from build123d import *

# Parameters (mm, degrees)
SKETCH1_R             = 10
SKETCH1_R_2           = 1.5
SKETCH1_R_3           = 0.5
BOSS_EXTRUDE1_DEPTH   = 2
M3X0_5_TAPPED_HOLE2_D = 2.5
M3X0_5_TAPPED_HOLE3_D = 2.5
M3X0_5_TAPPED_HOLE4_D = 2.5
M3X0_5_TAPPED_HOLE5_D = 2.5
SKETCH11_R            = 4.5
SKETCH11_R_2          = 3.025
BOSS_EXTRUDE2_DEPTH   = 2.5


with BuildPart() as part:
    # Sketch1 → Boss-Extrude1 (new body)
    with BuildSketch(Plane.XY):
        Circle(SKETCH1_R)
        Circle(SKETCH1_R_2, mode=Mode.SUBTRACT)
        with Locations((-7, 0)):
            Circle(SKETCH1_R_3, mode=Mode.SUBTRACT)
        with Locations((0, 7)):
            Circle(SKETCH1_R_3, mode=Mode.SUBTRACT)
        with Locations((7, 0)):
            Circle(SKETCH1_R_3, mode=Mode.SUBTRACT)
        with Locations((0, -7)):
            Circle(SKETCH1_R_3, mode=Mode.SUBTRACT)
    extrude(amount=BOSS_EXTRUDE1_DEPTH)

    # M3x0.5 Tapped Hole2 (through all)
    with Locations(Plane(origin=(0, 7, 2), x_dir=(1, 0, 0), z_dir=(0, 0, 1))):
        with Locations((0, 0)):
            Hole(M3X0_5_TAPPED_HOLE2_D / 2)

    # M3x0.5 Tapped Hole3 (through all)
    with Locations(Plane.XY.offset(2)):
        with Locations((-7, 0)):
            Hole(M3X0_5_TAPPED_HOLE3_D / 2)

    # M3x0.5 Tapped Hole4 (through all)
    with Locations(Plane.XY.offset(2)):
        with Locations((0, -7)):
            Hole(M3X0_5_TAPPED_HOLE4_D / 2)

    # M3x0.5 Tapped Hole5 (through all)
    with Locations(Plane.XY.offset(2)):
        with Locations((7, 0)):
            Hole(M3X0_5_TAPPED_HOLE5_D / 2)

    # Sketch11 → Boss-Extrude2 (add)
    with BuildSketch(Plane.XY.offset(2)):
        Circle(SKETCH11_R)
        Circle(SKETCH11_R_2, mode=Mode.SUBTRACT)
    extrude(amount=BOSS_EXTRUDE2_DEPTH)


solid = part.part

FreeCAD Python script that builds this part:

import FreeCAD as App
import Part
import Sketcher
from FreeCAD import Vector
Q = App.Units.Quantity

doc = App.newDocument("Part")
body = doc.addObject("PartDesign::Body", "Body")

# Sketch on XY plane
sketch1 = body.newObject("Sketcher::SketchObject", "Sketch")
sketch1.AttachmentSupport = (doc.getObject("XY_Plane"), [""])
sketch1.MapMode = "FlatFace"
sketch1.addGeometry([
    Part.Circle(Vector(0, 0, 0), Vector(0, 0, 1), 10),  # 0
    Part.Circle(Vector(0, -7, 0), Vector(0, 0, 1), 0.5),  # 1
    Part.Circle(Vector(-7, 0, 0), Vector(0, 0, 1), 0.5),  # 2
    Part.Circle(Vector(0, 0, 0), Vector(0, 0, 1), 1.5),  # 3
    Part.Circle(Vector(7, 0, 0), Vector(0, 0, 1), 0.5),  # 4
    Part.Circle(Vector(0, 7, 0), Vector(0, 0, 1), 0.5),  # 5
], False)
sketch1.addConstraint([
    Sketcher.Constraint("Coincident", 0, 3, -1, 1),
    Sketcher.Constraint("Coincident", 3, 3, -1, 1),
    Sketcher.Constraint("Equal", 1, 2),
    Sketcher.Constraint("Equal", 2, 4),
    Sketcher.Constraint("Equal", 4, 5),
    Sketcher.Constraint("Symmetric", 2, 3, 4, 3, -1, 1),
    Sketcher.Constraint("Symmetric", 1, 3, 5, 3, -1, 1),
    Sketcher.Constraint("PointOnObject", 1, 3, -2),
    Sketcher.Constraint("PointOnObject", 2, 3, -1),
    Sketcher.Constraint("Diameter", 0, Q("20 mm")),
    Sketcher.Constraint("Diameter", 1, Q("1 mm")),
    Sketcher.Constraint("Diameter", 3, Q("3 mm")),
    Sketcher.Constraint("DistanceY", 1, 3, -1, 1, Q("7 mm")),
    Sketcher.Constraint("DistanceX", 2, 3, -1, 1, Q("7 mm")),
])
pad1 = body.newObject("PartDesign::Pad", "Pad")
pad1.Profile = sketch1
pad1.Length = 2

# Sketch on XY plane
sketch2 = body.newObject("Sketcher::SketchObject", "Sketch001")
sketch2.AttachmentSupport = (doc.getObject("XY_Plane"), [""])
sketch2.MapMode = "FlatFace"
sketch2.AttachmentOffset = App.Placement(Vector(0, 0, 2), App.Rotation())
sketch2.addGeometry(Part.Circle(Vector(0, 7, 0), Vector(0, 0, 1), 1.2), False)
sketch2.addConstraint([
    Sketcher.Constraint("PointOnObject", 0, 3, -2),
    Sketcher.Constraint("Diameter", 0, Q("2.5 mm")),
    Sketcher.Constraint("DistanceY", -1, 1, 0, 3, Q("7 mm")),
])
doc.recompute()
hole = body.newObject("PartDesign::Hole", "Hole")
hole.Profile = sketch2
hole.ThreadType = "None"
hole.Diameter = 2.5
hole.DepthType = "ThroughAll"

# Sketch on XY plane
sketch3 = body.newObject("Sketcher::SketchObject", "Sketch002")
sketch3.AttachmentSupport = (doc.getObject("XY_Plane"), [""])
sketch3.MapMode = "FlatFace"
sketch3.AttachmentOffset = App.Placement(Vector(0, 0, 2), App.Rotation())
sketch3.addGeometry(Part.Circle(Vector(-7, 0, 0), Vector(0, 0, 1), 1.2), False)
sketch3.addConstraint([
    Sketcher.Constraint("PointOnObject", 0, 3, -1),
    Sketcher.Constraint("Diameter", 0, Q("2.5 mm")),
    Sketcher.Constraint("DistanceX", 0, 3, -1, 1, Q("7 mm")),
])
doc.recompute()
hole2 = body.newObject("PartDesign::Hole", "Hole001")
hole2.Profile = sketch3
hole2.ThreadType = "None"
hole2.Diameter = 2.5
hole2.DepthType = "ThroughAll"

# Sketch on XY plane
sketch4 = body.newObject("Sketcher::SketchObject", "Sketch003")
sketch4.AttachmentSupport = (doc.getObject("XY_Plane"), [""])
sketch4.MapMode = "FlatFace"
sketch4.AttachmentOffset = App.Placement(Vector(0, 0, 2), App.Rotation())
sketch4.addGeometry(Part.Circle(Vector(0, -7, 0), Vector(0, 0, 1), 1.2), False)
sketch4.addConstraint([
    Sketcher.Constraint("PointOnObject", 0, 3, -2),
    Sketcher.Constraint("Diameter", 0, Q("2.5 mm")),
    Sketcher.Constraint("DistanceY", 0, 3, -1, 1, Q("7 mm")),
])
doc.recompute()
hole3 = body.newObject("PartDesign::Hole", "Hole002")
hole3.Profile = sketch4
hole3.ThreadType = "None"
hole3.Diameter = 2.5
hole3.DepthType = "ThroughAll"

# Sketch on XY plane
sketch5 = body.newObject("Sketcher::SketchObject", "Sketch004")
sketch5.AttachmentSupport = (doc.getObject("XY_Plane"), [""])
sketch5.MapMode = "FlatFace"
sketch5.AttachmentOffset = App.Placement(Vector(0, 0, 2), App.Rotation())
sketch5.addGeometry(Part.Circle(Vector(7, 0, 0), Vector(0, 0, 1), 1.2), False)
sketch5.addConstraint([
    Sketcher.Constraint("PointOnObject", 0, 3, -1),
    Sketcher.Constraint("Diameter", 0, Q("2.5 mm")),
    Sketcher.Constraint("DistanceX", -1, 1, 0, 3, Q("7 mm")),
])
doc.recompute()
hole4 = body.newObject("PartDesign::Hole", "Hole003")
hole4.Profile = sketch5
hole4.ThreadType = "None"
hole4.Diameter = 2.5
hole4.DepthType = "ThroughAll"

# Sketch on XY plane
sketch6 = body.newObject("Sketcher::SketchObject", "Sketch005")
sketch6.AttachmentSupport = (doc.getObject("XY_Plane"), [""])
sketch6.MapMode = "FlatFace"
sketch6.AttachmentOffset = App.Placement(Vector(0, 0, 2), App.Rotation())
sketch6.addGeometry([
    Part.Circle(Vector(0, 0, 0), Vector(0, 0, 1), 4.5),
    Part.Circle(Vector(0, 0, 0), Vector(0, 0, 1), 3),
], False)
sketch6.addConstraint([
    Sketcher.Constraint("Coincident", 0, 3, -1, 1),
    Sketcher.Constraint("Coincident", 1, 3, -1, 1),
    Sketcher.Constraint("Diameter", 0, Q("9 mm")),
    Sketcher.Constraint("Diameter", 1, Q("6.05 mm")),
])
pad2 = body.newObject("PartDesign::Pad", "Pad001")
pad2.Profile = sketch6
pad2.Length = 2.5

doc.recompute()
